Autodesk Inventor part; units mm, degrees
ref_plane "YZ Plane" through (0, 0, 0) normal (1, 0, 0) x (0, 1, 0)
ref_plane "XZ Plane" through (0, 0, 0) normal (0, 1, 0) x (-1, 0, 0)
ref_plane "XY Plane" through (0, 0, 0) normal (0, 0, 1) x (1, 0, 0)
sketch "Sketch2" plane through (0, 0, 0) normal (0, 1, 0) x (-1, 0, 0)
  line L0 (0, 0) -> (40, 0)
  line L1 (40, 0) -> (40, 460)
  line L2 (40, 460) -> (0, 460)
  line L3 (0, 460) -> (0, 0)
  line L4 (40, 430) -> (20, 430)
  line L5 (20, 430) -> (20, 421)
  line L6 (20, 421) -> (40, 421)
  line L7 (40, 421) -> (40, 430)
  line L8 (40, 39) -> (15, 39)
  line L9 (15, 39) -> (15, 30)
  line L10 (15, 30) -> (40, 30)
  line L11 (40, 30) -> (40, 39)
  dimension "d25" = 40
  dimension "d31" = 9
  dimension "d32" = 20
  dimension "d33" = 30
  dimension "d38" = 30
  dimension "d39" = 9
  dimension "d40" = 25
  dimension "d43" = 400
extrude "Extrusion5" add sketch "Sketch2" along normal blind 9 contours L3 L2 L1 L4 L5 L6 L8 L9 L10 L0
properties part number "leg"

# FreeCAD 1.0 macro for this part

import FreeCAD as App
import Part
import Sketcher

V = App.Vector


def add_polygon(sketch, points):
    """Adds a closed chain of lines whose ends are joined by coincident constraints."""
    first, n = sketch.GeometryCount, len(points)
    for a, b in zip(points, points[1:] + points[:1]):
        sketch.addGeometry(Part.LineSegment(App.Vector(*a, 0), App.Vector(*b, 0)), False)
    for i in range(n):
        sketch.addConstraint(Sketcher.Constraint("Coincident", first + i, 2, first + (i + 1) % n, 1))

doc = App.newDocument("Part")
body = doc.addObject("PartDesign::Body", "Body")

# Sketch on XZ plane
sketch1 = body.newObject("Sketcher::SketchObject", "Sketch")
sketch1.AttachmentSupport = (doc.getObject("XZ_Plane"), [""])
sketch1.MapMode = "FlatFace"
add_polygon(sketch1, [(0, 460), (0, 0), (-40, 0), (-40, 30), (-15, 30), (-15, 39), (-40, 39), (-40, 421), (-20, 421), (-20, 430), (-40, 430), (-40, 460)])  # lines 0-11
sketch1.addConstraint([
    Sketcher.Constraint("Vertical", 0),
    Sketcher.Constraint("Horizontal", 1),
    Sketcher.Constraint("Vertical", 2),
    Sketcher.Constraint("Horizontal", 3),
    Sketcher.Constraint("Vertical", 4),
    Sketcher.Constraint("Horizontal", 5),
    Sketcher.Constraint("Vertical", 6),
    Sketcher.Constraint("Horizontal", 7),
    Sketcher.Constraint("Vertical", 8),
    Sketcher.Constraint("Horizontal", 9),
    Sketcher.Constraint("Vertical", 10),
    Sketcher.Constraint("Horizontal", 11),
    Sketcher.Constraint("Coincident", 0, 2, -1, 1),
    Sketcher.Constraint("Vertical", 2, 2, 5, 2),
    Sketcher.Constraint("Vertical", 6, 2, 9, 2),
    Sketcher.Constraint("Equal", 4, 8),
    Sketcher.Constraint("Equal", 2, 10),
    Sketcher.Constraint("DistanceX", 1, 2, 1, 1, 40.0),
    Sketcher.Constraint("DistanceX", 3, 1, 3, 2, 25.0),
    Sketcher.Constraint("DistanceX", 7, 1, 7, 2, 20.0),
    Sketcher.Constraint("DistanceY", 2, 1, 2, 2, 30.0),
    Sketcher.Constraint("DistanceY", 4, 1, 4, 2, 9.0),
    Sketcher.Constraint("DistanceY", 3, 2, 8, 2, 400.0),
])
pad1 = body.newObject("PartDesign::Pad", "Pad")
pad1.Profile = sketch1
pad1.Length = 9
pad1.Reversed = True

doc.recompute()
